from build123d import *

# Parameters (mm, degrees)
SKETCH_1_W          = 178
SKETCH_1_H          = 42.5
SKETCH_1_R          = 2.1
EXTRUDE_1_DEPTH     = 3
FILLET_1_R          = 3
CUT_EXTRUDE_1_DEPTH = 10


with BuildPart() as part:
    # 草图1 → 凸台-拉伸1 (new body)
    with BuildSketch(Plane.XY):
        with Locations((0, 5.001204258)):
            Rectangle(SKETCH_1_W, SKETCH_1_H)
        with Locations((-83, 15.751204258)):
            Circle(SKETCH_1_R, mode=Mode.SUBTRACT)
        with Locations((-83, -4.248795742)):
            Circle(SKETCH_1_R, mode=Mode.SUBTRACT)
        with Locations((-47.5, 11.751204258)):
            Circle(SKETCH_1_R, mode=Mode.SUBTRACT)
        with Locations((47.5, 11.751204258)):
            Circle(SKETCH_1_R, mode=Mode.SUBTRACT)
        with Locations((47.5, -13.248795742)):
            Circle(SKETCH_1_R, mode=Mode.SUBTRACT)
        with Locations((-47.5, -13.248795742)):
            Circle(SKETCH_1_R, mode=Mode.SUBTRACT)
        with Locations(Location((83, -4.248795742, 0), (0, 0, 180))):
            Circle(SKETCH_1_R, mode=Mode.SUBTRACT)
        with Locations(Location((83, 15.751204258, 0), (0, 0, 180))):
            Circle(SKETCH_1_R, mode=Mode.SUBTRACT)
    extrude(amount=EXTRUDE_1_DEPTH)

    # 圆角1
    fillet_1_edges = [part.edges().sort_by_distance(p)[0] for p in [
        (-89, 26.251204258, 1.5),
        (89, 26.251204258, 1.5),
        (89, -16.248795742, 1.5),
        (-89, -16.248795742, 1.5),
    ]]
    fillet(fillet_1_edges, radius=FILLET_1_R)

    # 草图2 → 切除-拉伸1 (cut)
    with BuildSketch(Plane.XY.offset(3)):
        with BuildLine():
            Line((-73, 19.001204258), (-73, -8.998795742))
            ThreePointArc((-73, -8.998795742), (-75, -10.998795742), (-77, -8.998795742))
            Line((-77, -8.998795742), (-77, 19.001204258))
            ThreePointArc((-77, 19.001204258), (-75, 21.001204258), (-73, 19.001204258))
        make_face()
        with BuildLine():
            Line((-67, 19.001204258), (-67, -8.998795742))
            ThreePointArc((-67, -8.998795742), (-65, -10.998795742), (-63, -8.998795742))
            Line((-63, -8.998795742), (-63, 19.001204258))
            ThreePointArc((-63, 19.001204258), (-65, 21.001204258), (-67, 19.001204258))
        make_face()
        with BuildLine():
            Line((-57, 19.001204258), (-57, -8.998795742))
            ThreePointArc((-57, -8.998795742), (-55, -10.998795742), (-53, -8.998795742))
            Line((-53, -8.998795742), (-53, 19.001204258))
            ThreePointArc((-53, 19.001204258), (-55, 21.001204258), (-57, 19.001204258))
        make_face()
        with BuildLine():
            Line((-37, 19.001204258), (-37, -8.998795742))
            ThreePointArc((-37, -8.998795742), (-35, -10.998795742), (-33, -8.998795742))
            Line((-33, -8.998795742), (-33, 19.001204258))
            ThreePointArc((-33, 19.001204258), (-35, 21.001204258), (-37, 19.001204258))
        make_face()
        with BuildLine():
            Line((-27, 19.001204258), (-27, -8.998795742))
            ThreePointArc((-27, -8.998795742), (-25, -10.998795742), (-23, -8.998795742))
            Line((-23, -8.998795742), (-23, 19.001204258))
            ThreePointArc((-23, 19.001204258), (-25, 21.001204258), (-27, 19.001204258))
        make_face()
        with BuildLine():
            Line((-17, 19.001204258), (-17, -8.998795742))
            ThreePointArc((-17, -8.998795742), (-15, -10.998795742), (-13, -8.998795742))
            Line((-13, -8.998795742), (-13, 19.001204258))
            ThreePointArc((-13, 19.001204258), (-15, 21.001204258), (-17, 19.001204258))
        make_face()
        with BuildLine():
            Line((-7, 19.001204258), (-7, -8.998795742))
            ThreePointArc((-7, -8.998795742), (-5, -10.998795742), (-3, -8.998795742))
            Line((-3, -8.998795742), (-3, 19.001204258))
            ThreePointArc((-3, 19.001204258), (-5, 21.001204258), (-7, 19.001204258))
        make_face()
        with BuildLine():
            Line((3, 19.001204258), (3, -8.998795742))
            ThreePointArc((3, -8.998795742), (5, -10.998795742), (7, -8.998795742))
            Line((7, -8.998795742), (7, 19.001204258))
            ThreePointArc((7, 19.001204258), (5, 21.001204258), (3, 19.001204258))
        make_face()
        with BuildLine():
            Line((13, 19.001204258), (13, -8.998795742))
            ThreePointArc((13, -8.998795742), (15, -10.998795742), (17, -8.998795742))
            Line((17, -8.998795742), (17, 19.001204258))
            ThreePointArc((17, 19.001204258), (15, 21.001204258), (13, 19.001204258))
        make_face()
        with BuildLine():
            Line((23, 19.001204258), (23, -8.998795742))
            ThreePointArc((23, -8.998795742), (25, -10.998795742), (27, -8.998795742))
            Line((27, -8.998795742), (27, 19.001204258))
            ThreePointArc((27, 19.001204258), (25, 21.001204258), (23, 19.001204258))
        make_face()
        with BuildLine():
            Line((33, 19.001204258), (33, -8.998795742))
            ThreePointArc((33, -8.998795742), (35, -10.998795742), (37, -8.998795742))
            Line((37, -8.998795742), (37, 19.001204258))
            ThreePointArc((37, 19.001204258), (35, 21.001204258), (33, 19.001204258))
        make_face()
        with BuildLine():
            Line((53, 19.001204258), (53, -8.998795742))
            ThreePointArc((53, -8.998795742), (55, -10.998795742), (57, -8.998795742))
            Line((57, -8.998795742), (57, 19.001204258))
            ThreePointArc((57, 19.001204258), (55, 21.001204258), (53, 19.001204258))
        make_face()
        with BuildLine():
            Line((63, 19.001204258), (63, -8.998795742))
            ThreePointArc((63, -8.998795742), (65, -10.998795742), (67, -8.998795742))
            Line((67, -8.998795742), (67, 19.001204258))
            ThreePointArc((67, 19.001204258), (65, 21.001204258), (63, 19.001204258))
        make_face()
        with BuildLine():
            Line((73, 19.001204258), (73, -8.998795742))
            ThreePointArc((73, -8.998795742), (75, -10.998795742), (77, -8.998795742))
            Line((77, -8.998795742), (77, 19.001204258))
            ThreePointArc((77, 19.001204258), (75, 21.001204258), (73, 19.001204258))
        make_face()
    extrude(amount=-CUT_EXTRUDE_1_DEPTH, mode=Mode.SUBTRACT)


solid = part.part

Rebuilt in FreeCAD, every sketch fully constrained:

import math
import FreeCAD as App
import Part
import Sketcher
from FreeCAD import Vector
Q = App.Units.Quantity


def edges_at(feature, points):
    """Names of the edges that pass closest to the given points."""
    edges = feature.Shape.Edges
    near = lambda p: min(range(len(edges)), key=lambda i: edges[i].distToShape(Part.Vertex(*p))[0])
    return sorted({f"Edge{near(p) + 1}" for p in points})

doc = App.newDocument("Part")
body = doc.addObject("PartDesign::Body", "Body")

# Sketch on XY plane
sketch1 = body.newObject("Sketcher::SketchObject", "Sketch")
sketch1.AttachmentSupport = (doc.getObject("XY_Plane"), [""])
sketch1.MapMode = "FlatFace"
sketch1.addGeometry([
    Part.LineSegment(Vector(-89, 26.3, 0), Vector(-89, -16.2, 0)),  # 0
    Part.LineSegment(Vector(-89, -16.2, 0), Vector(89, -16.2, 0)),  # 1
    Part.LineSegment(Vector(89, -16.2, 0), Vector(89, 26.3, 0)),  # 2
    Part.LineSegment(Vector(89, 26.3, 0), Vector(-89, 26.3, 0)),  # 3
    Part.Circle(Vector(-47.5, -13.2, 0), Vector(0, 0, 1), 2.1),  # 4
    Part.Circle(Vector(-83, -4.2, 0), Vector(0, 0, 1), 2.1),  # 5
    Part.Circle(Vector(47.5, -13.2, 0), Vector(0, 0, 1), 2.1),  # 6
    Part.Circle(Vector(83, -4.2, 0), Vector(0, 0, 1), 2.1),  # 7
    Part.Circle(Vector(-47.5, 11.8, 0), Vector(0, 0, 1), 2.1),  # 8
    Part.Circle(Vector(-83, 15.8, 0), Vector(0, 0, 1), 2.1),  # 9
    Part.Circle(Vector(47.5, 11.8, 0), Vector(0, 0, 1), 2.1),  # 10
    Part.Circle(Vector(83, 15.8, 0), Vector(0, 0, 1), 2.1),  # 11
], False)
sketch1.addConstraint([
    Sketcher.Constraint("Coincident", 0, 2, 1, 1),
    Sketcher.Constraint("Coincident", 1, 2, 2, 1),
    Sketcher.Constraint("Coincident", 2, 2, 3, 1),
    Sketcher.Constraint("Coincident", 3, 2, 0, 1),
    Sketcher.Constraint("Vertical", 0),
    Sketcher.Constraint("Horizontal", 1),
    Sketcher.Constraint("Vertical", 2),
    Sketcher.Constraint("Horizontal", 3),
    Sketcher.Constraint("Equal", 4, 5),
    Sketcher.Constraint("Equal", 5, 6),
    Sketcher.Constraint("Equal", 6, 7),
    Sketcher.Constraint("Equal", 7, 8),
    Sketcher.Constraint("Equal", 8, 9),
    Sketcher.Constraint("Equal", 9, 10),
    Sketcher.Constraint("Equal", 10, 11),
    Sketcher.Constraint("Symmetric", 4, 3, 6, 3, -2),
    Sketcher.Constraint("Symmetric", 5, 3, 7, 3, -2),
    Sketcher.Constraint("Symmetric", 8, 3, 10, 3, -2),
    Sketcher.Constraint("Symmetric", 9, 3, 11, 3, -2),
    Sketcher.Constraint("Vertical", 4, 3, 8, 3),
    Sketcher.Constraint("Vertical", 5, 3, 9, 3),
    Sketcher.Constraint("Diameter", 4, Q("4.2 mm")),
    Sketcher.Constraint("DistanceX", 1, 1, 1, 2, Q("178 mm")),
    Sketcher.Constraint("DistanceY", 0, 2, 0, 1, Q("42.5 mm")),
    Sketcher.Constraint("DistanceX", 5, 3, -1, 1, Q("83 mm")),
    Sketcher.Constraint("DistanceX", 0, 2, -1, 1, Q("89 mm")),
    Sketcher.Constraint("DistanceY", 4, 3, 5, 3, Q("9 mm")),
    Sketcher.Constraint("DistanceX", 4, 3, 6, 3, Q("95 mm")),
    Sketcher.Constraint("DistanceY", 4, 3, 8, 3, Q("25 mm")),
    Sketcher.Constraint("DistanceY", 5, 3, 9, 3, Q("20 mm")),
    Sketcher.Constraint("DistanceY", 0, 2, 5, 3, Q("12 mm")),
    Sketcher.Constraint("DistanceY", 4, 3, -1, 1, Q("13.248796 mm")),
])
pad1 = body.newObject("PartDesign::Pad", "Pad")
pad1.Profile = sketch1
pad1.Length = 3
doc.recompute()

fillet = body.newObject("PartDesign::Fillet", "Fillet")
fillet.Base = (pad1, edges_at(pad1, [
    (-89, 26.251, 1.5),
    (89, 26.251, 1.5),
    (89, -16.249, 1.5),
    (-89, -16.249, 1.5),
]))
fillet.Radius = 3

# Sketch on XY plane
sketch2 = body.newObject("Sketcher::SketchObject", "Sketch001")
sketch2.AttachmentSupport = (doc.getObject("XY_Plane"), [""])
sketch2.MapMode = "FlatFace"
sketch2.AttachmentOffset = App.Placement(Vector(0, 0, 3), App.Rotation())
sketch2.addGeometry([
    Part.LineSegment(Vector(-73, -9, 0), Vector(-73, 19, 0)),  # 0
    Part.ArcOfCircle(Part.Circle(Vector(-75, 19, 0), Vector(0, 0, 1), 2), math.radians(0), math.radians(180)),  # 1
    Part.LineSegment(Vector(-77, 19, 0), Vector(-77, -9, 0)),  # 2
    Part.ArcOfCircle(Part.Circle(Vector(-75, -9, 0), Vector(0, 0, 1), 2), math.radians(180), math.radians(360)),  # 3
    Part.LineSegment(Vector(-67, 19, 0), Vector(-67, -9, 0)),  # 4
    Part.ArcOfCircle(Part.Circle(Vector(-65, -9, 0), Vector(0, 0, 1), 2), math.radians(180), math.radians(360)),  # 5
    Part.LineSegment(Vector(-63, -9, 0), Vector(-63, 19, 0)),  # 6
    Part.ArcOfCircle(Part.Circle(Vector(-65, 19, 0), Vector(0, 0, 1), 2), math.radians(0), math.radians(180)),  # 7
    Part.LineSegment(Vector(-57, 19, 0), Vector(-57, -9, 0)),  # 8
    Part.ArcOfCircle(Part.Circle(Vector(-55, -9, 0), Vector(0, 0, 1), 2), math.radians(180), math.radians(360)),  # 9
    Part.LineSegment(Vector(-53, -9, 0), Vector(-53, 19, 0)),  # 10
    Part.ArcOfCircle(Part.Circle(Vector(-55, 19, 0), Vector(0, 0, 1), 2), math.radians(0), math.radians(180)),  # 11
    Part.LineSegment(Vector(-37, 19, 0), Vector(-37, -9, 0)),  # 12
    Part.ArcOfCircle(Part.Circle(Vector(-35, -9, 0), Vector(0, 0, 1), 2), math.radians(180), math.radians(360)),  # 13
    Part.LineSegment(Vector(-33, -9, 0), Vector(-33, 19, 0)),  # 14
    Part.ArcOfCircle(Part.Circle(Vector(-35, 19, 0), Vector(0, 0, 1), 2), math.radians(0), math.radians(180)),  # 15
    Part.LineSegment(Vector(-27, 19, 0), Vector(-27, -9, 0)),  # 16
    Part.ArcOfCircle(Part.Circle(Vector(-25, -9, 0), Vector(0, 0, 1), 2), math.radians(180), math.radians(360)),  # 17
    Part.LineSegment(Vector(-23, -9, 0), Vector(-23, 19, 0)),  # 18
    Part.ArcOfCircle(Part.Circle(Vector(-25, 19, 0), Vector(0, 0, 1), 2), math.radians(0), math.radians(180)),  # 19
    Part.LineSegment(Vector(-17, 19, 0), Vector(-17, -9, 0)),  # 20
    Part.ArcOfCircle(Part.Circle(Vector(-15, -9, 0), Vector(0, 0, 1), 2), math.radians(180), math.radians(360)),  # 21
    Part.LineSegment(Vector(-13, -9, 0), Vector(-13, 19, 0)),  # 22
    Part.ArcOfCircle(Part.Circle(Vector(-15, 19, 0), Vector(0, 0, 1), 2), math.radians(0), math.radians(180)),  # 23
    Part.LineSegment(Vector(-7, 19, 0), Vector(-7, -9, 0)),  # 24
    Part.ArcOfCircle(Part.Circle(Vector(-5, -9, 0), Vector(0, 0, 1), 2), math.radians(180), math.radians(360)),  # 25
    Part.LineSegment(Vector(-3, -9, 0), Vector(-3, 19, 0)),  # 26
    Part.ArcOfCircle(Part.Circle(Vector(-5, 19, 0), Vector(0, 0, 1), 2), math.radians(0), math.radians(180)),  # 27
    Part.LineSegment(Vector(3, 19, 0), Vector(3, -9, 0)),  # 28
    Part.ArcOfCircle(Part.Circle(Vector(5, -9, 0), Vector(0, 0, 1), 2), math.radians(180), math.radians(360)),  # 29
    Part.LineSegment(Vector(7, -9, 0), Vector(7, 19, 0)),  # 30
    Part.ArcOfCircle(Part.Circle(Vector(5, 19, 0), Vector(0, 0, 1), 2), math.radians(0), math.radians(180)),  # 31
    Part.LineSegment(Vector(13, 19, 0), Vector(13, -9, 0)),  # 32
    Part.ArcOfCircle(Part.Circle(Vector(15, -9, 0), Vector(0, 0, 1), 2), math.radians(180), math.radians(360)),  # 33
    Part.LineSegment(Vector(17, -9, 0), Vector(17, 19, 0)),  # 34
    Part.ArcOfCircle(Part.Circle(Vector(15, 19, 0), Vector(0, 0, 1), 2), math.radians(0), math.radians(180)),  # 35
    Part.LineSegment(Vector(23, 19, 0), Vector(23, -9, 0)),  # 36
    Part.ArcOfCircle(Part.Circle(Vector(25, -9, 0), Vector(0, 0, 1), 2), math.radians(180), math.radians(360)),  # 37
    Part.LineSegment(Vector(27, -9, 0), Vector(27, 19, 0)),  # 38
    Part.ArcOfCircle(Part.Circle(Vector(25, 19, 0), Vector(0, 0, 1), 2), math.radians(0), math.radians(180)),  # 39
    Part.LineSegment(Vector(33, 19, 0), Vector(33, -9, 0)),  # 40
    Part.ArcOfCircle(Part.Circle(Vector(35, -9, 0), Vector(0, 0, 1), 2), math.radians(180), math.radians(360)),  # 41
    Part.LineSegment(Vector(37, -9, 0), Vector(37, 19, 0)),  # 42
    Part.ArcOfCircle(Part.Circle(Vector(35, 19, 0), Vector(0, 0, 1), 2), math.radians(0), math.radians(180)),  # 43
    Part.LineSegment(Vector(53, 19, 0), Vector(53, -9, 0)),  # 44
    Part.ArcOfCircle(Part.Circle(Vector(55, -9, 0), Vector(0, 0, 1), 2), math.radians(180), math.radians(360)),  # 45
    Part.LineSegment(Vector(57, -9, 0), Vector(57, 19, 0)),  # 46
    Part.ArcOfCircle(Part.Circle(Vector(55, 19, 0), Vector(0, 0, 1), 2), math.radians(0), math.radians(180)),  # 47
    Part.LineSegment(Vector(63, 19, 0), Vector(63, -9, 0)),  # 48
    Part.ArcOfCircle(Part.Circle(Vector(65, -9, 0), Vector(0, 0, 1), 2), math.radians(180), math.radians(360)),  # 49
    Part.LineSegment(Vector(67, -9, 0), Vector(67, 19, 0)),  # 50
    Part.ArcOfCircle(Part.Circle(Vector(65, 19, 0), Vector(0, 0, 1), 2), math.radians(0), math.radians(180)),  # 51
    Part.LineSegment(Vector(73, 19, 0), Vector(73, -9, 0)),  # 52
    Part.ArcOfCircle(Part.Circle(Vector(75, -9, 0), Vector(0, 0, 1), 2), math.radians(180), math.radians(360)),  # 53
    Part.LineSegment(Vector(77, -9, 0), Vector(77, 19, 0)),  # 54
    Part.ArcOfCircle(Part.Circle(Vector(75, 19, 0), Vector(0, 0, 1), 2), math.radians(0), math.radians(180)),  # 55
], False)
sketch2.addConstraint([
    Sketcher.Constraint("Tangent", 0, 2, 1, 1),
    Sketcher.Constraint("Tangent", 1, 2, 2, 1),
    Sketcher.Constraint("Tangent", 2, 2, 3, 1),
    Sketcher.Constraint("Tangent", 3, 2, 0, 1),
    Sketcher.Constraint("Tangent", 4, 2, 5, 1),
    Sketcher.Constraint("Tangent", 5, 2, 6, 1),
    Sketcher.Constraint("Tangent", 6, 2, 7, 1),
    Sketcher.Constraint("Tangent", 7, 2, 4, 1),
    Sketcher.Constraint("Tangent", 8, 2, 9, 1),
    Sketcher.Constraint("Tangent", 9, 2, 10, 1),
    Sketcher.Constraint("Tangent", 10, 2, 11, 1),
    Sketcher.Constraint("Tangent", 11, 2, 8, 1),
    Sketcher.Constraint("Tangent", 12, 2, 13, 1),
    Sketcher.Constraint("Tangent", 13, 2, 14, 1),
    Sketcher.Constraint("Tangent", 14, 2, 15, 1),
    Sketcher.Constraint("Tangent", 15, 2, 12, 1),
    Sketcher.Constraint("Tangent", 16, 2, 17, 1),
    Sketcher.Constraint("Tangent", 17, 2, 18, 1),
    Sketcher.Constraint("Tangent", 18, 2, 19, 1),
    Sketcher.Constraint("Tangent", 19, 2, 16, 1),
    Sketcher.Constraint("Tangent", 20, 2, 21, 1),
    Sketcher.Constraint("Tangent", 21, 2, 22, 1),
    Sketcher.Constraint("Tangent", 22, 2, 23, 1),
    Sketcher.Constraint("Tangent", 23, 2, 20, 1),
    Sketcher.Constraint("Tangent", 24, 2, 25, 1),
    Sketcher.Constraint("Tangent", 25, 2, 26, 1),
    Sketcher.Constraint("Tangent", 26, 2, 27, 1),
    Sketcher.Constraint("Tangent", 27, 2, 24, 1),
    Sketcher.Constraint("Tangent", 28, 2, 29, 1),
    Sketcher.Constraint("Tangent", 29, 2, 30, 1),
    Sketcher.Constraint("Tangent", 30, 2, 31, 1),
    Sketcher.Constraint("Tangent", 31, 2, 28, 1),
    Sketcher.Constraint("Tangent", 32, 2, 33, 1),
    Sketcher.Constraint("Tangent", 33, 2, 34, 1),
    Sketcher.Constraint("Tangent", 34, 2, 35, 1),
    Sketcher.Constraint("Tangent", 35, 2, 32, 1),
    Sketcher.Constraint("Tangent", 36, 2, 37, 1),
    Sketcher.Constraint("Tangent", 37, 2, 38, 1),
    Sketcher.Constraint("Tangent", 38, 2, 39, 1),
    Sketcher.Constraint("Tangent", 39, 2, 36, 1),
    Sketcher.Constraint("Tangent", 40, 2, 41, 1),
    Sketcher.Constraint("Tangent", 41, 2, 42, 1),
    Sketcher.Constraint("Tangent", 42, 2, 43, 1),
    Sketcher.Constraint("Tangent", 43, 2, 40, 1),
    Sketcher.Constraint("Tangent", 44, 2, 45, 1),
    Sketcher.Constraint("Tangent", 45, 2, 46, 1),
    Sketcher.Constraint("Tangent", 46, 2, 47, 1),
    Sketcher.Constraint("Tangent", 47, 2, 44, 1),
    Sketcher.Constraint("Tangent", 48, 2, 49, 1),
    Sketcher.Constraint("Tangent", 49, 2, 50, 1),
    Sketcher.Constraint("Tangent", 50, 2, 51, 1),
    Sketcher.Constraint("Tangent", 51, 2, 48, 1),
    Sketcher.Constraint("Tangent", 52, 2, 53, 1),
    Sketcher.Constraint("Tangent", 53, 2, 54, 1),
    Sketcher.Constraint("Tangent", 54, 2, 55, 1),
    Sketcher.Constraint("Tangent", 55, 2, 52, 1),
    Sketcher.Constraint("Vertical", 0),
    Sketcher.Constraint("Vertical", 2),
    Sketcher.Constraint("Vertical", 4),
    Sketcher.Constraint("Vertical", 6),
    Sketcher.Constraint("Vertical", 8),
    Sketcher.Constraint("Vertical", 10),
    Sketcher.Constraint("Vertical", 12),
    Sketcher.Constraint("Vertical", 14),
    Sketcher.Constraint("Vertical", 16),
    Sketcher.Constraint("Vertical", 18),
    Sketcher.Constraint("Vertical", 20),
    Sketcher.Constraint("Vertical", 22),
    Sketcher.Constraint("Vertical", 24),
    Sketcher.Constraint("Vertical", 26),
    Sketcher.Constraint("Vertical", 28),
    Sketcher.Constraint("Vertical", 30),
    Sketcher.Constraint("Vertical", 32),
    Sketcher.Constraint("Vertical", 34),
    Sketcher.Constraint("Vertical", 36),
    Sketcher.Constraint("Vertical", 38),
    Sketcher.Constraint("Vertical", 40),
    Sketcher.Constraint("Vertical", 42),
    Sketcher.Constraint("Vertical", 44),
    Sketcher.Constraint("Vertical", 46),
    Sketcher.Constraint("Vertical", 48),
    Sketcher.Constraint("Vertical", 50),
    Sketcher.Constraint("Vertical", 52),
    Sketcher.Constraint("Vertical", 54),
    Sketcher.Constraint("Equal", 3, 5),
    Sketcher.Constraint("Equal", 7, 9),
    Sketcher.Constraint("Equal", 11, 13),
    Sketcher.Constraint("Equal", 15, 17),
    Sketcher.Constraint("Equal", 19, 21),
    Sketcher.Constraint("Equal", 23, 25),
    Sketcher.Constraint("Equal", 27, 29),
    Sketcher.Constraint("Equal", 31, 33),
    Sketcher.Constraint("Equal", 35, 37),
    Sketcher.Constraint("Equal", 39, 41),
    Sketcher.Constraint("Equal", 43, 45),
    Sketcher.Constraint("Equal", 47, 49),
    Sketcher.Constraint("Equal", 51, 53),
    Sketcher.Constraint("Symmetric", 25, 3, 29, 3, -2),
    Sketcher.Constraint("Symmetric", 21, 3, 33, 3, -2),
    Sketcher.Constraint("Symmetric", 17, 3, 37, 3, -2),
    Sketcher.Constraint("Symmetric", 13, 3, 41, 3, -2),
    Sketcher.Constraint("Symmetric", 9, 3, 45, 3, -2),
    Sketcher.Constraint("Symmetric", 5, 3, 49, 3, -2),
    Sketcher.Constraint("Symmetric", 3, 3, 53, 3, -2),
    Sketcher.Constraint("Horizontal", 3, 3, 5, 3),
    Sketcher.Constraint("Horizontal", 1, 3, 7, 3),
    Sketcher.Constraint("Horizontal", 5, 3, 9, 3),
    Sketcher.Constraint("Horizontal", 7, 3, 11, 3),
    Sketcher.Constraint("Horizontal", 9, 3, 13, 3),
    Sketcher.Constraint("Horizontal", 11, 3, 15, 3),
    Sketcher.Constraint("Horizontal", 13, 3, 17, 3),
    Sketcher.Constraint("Horizontal", 15, 3, 19, 3),
    Sketcher.Constraint("Horizontal", 17, 3, 21, 3),
    Sketcher.Constraint("Horizontal", 19, 3, 23, 3),
    Sketcher.Constraint("Horizontal", 21, 3, 25, 3),
    Sketcher.Constraint("Horizontal", 23, 3, 27, 3),
    Sketcher.Constraint("Horizontal", 27, 3, 31, 3),
    Sketcher.Constraint("Horizontal", 31, 3, 35, 3),
    Sketcher.Constraint("Horizontal", 35, 3, 39, 3),
    Sketcher.Constraint("Horizontal", 39, 3, 43, 3),
    Sketcher.Constraint("Horizontal", 43, 3, 47, 3),
    Sketcher.Constraint("Horizontal", 47, 3, 51, 3),
    Sketcher.Constraint("Horizontal", 51, 3, 55, 3),
    Sketcher.Constraint("Radius", 1, Q("2 mm")),
    Sketcher.Constraint("DistanceY", 0, 1, 0, 2, Q("28 mm")),
    Sketcher.Constraint("DistanceX", 1, 3, -1, 1, Q("75 mm")),
    Sketcher.Constraint("DistanceX", 5, 3, -1, 1, Q("65 mm")),
    Sketcher.Constraint("DistanceX", 9, 3, -1, 1, Q("55 mm")),
    Sketcher.Constraint("DistanceX", 13, 3, -1, 1, Q("35 mm")),
    Sketcher.Constraint("DistanceX", 17, 3, -1, 1, Q("25 mm")),
    Sketcher.Constraint("DistanceX", 21, 3, -1, 1, Q("15 mm")),
    Sketcher.Constraint("DistanceX", 25, 3, -1, 1, Q("5 mm")),
    Sketcher.Constraint("DistanceY", -1, 1, 1, 3, Q("19.001204 mm")),
])
pocket1 = body.newObject("PartDesign::Pocket", "Pocket")
pocket1.Profile = sketch2
pocket1.Length = 10

doc.recompute()
